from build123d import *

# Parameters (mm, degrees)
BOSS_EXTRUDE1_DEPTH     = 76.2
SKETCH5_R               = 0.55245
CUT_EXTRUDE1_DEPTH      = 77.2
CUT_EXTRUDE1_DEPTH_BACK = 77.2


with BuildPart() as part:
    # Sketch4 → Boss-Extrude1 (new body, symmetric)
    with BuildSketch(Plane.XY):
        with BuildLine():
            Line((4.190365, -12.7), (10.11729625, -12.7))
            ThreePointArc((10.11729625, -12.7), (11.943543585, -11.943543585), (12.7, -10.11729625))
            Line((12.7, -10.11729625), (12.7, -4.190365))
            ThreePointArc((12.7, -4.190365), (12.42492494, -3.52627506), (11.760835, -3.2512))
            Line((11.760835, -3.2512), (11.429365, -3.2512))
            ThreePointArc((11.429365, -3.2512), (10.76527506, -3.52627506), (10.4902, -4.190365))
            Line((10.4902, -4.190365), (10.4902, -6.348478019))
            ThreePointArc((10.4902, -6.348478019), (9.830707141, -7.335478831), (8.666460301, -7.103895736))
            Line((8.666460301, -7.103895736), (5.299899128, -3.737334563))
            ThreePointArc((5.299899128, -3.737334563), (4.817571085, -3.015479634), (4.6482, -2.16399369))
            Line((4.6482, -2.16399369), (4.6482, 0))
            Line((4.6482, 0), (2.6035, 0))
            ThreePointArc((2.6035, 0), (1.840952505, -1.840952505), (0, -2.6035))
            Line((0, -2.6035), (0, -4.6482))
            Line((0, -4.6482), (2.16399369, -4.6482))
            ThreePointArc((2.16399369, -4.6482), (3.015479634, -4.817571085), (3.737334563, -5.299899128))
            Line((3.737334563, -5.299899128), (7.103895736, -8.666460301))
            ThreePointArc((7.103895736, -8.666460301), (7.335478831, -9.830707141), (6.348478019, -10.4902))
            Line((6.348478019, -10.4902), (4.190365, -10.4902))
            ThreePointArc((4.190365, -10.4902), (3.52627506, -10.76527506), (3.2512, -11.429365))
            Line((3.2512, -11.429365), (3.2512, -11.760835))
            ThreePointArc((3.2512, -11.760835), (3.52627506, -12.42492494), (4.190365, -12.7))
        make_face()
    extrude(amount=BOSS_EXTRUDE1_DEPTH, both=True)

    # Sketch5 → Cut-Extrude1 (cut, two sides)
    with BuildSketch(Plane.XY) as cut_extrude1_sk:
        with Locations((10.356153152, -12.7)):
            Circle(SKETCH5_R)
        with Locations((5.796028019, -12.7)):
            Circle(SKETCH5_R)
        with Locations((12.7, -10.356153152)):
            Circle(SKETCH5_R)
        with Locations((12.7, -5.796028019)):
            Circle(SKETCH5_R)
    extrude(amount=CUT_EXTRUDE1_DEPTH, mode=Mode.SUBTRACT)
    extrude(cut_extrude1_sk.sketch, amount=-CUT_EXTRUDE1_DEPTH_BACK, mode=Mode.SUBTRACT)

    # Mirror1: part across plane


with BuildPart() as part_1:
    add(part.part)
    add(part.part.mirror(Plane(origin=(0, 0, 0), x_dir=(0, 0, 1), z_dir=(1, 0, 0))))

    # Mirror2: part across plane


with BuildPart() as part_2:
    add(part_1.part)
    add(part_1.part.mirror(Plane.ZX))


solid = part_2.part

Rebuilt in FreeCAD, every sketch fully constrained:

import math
import FreeCAD as App
import Part
import Sketcher
from FreeCAD import Vector
Q = App.Units.Quantity

doc = App.newDocument("Part")
body = doc.addObject("PartDesign::Body", "Body")

# Sketch on XY plane
sketch1 = doc.addObject("Sketcher::SketchObject", "Sketch")
body.addObject(sketch1)
sketch1.AttachmentSupport = (doc.XY_Plane, [""])
sketch1.MapMode = "FlatFace"
sketch1.addGeometry([
    Part.LineSegment(Vector(4.19, -12.7, 0), Vector(10.12, -12.7, 0)),  # 0
    Part.ArcOfCircle(Part.Circle(Vector(10.12, -10.12, 0), Vector(0, 0, 1), 2.58), math.radians(-90), math.radians(0)),  # 1
    Part.LineSegment(Vector(12.7, -10.12, 0), Vector(12.7, -4.19, 0)),  # 2
    Part.ArcOfCircle(Part.Circle(Vector(11.76, -4.19, 0), Vector(0, 0, 1), 0.94), math.radians(0), math.radians(90)),  # 3
    Part.LineSegment(Vector(11.76, -3.25, 0), Vector(11.43, -3.25, 0)),  # 4
    Part.ArcOfCircle(Part.Circle(Vector(11.43, -4.19, 0), Vector(0, 0, 1), 0.94), math.radians(90), math.radians(180)),  # 5
    Part.LineSegment(Vector(10.49, -4.19, 0), Vector(10.49, -6.35, 0)),  # 6
    Part.ArcOfCircle(Part.Circle(Vector(9.42, -6.35, 0), Vector(0, 0, 1), 1.07), math.radians(-135), math.radians(0)),  # 7
    Part.LineSegment(Vector(8.67, -7.1, 0), Vector(5.3, -3.74, 0)),  # 8
    Part.ArcOfCircle(Part.Circle(Vector(6.87, -2.16, 0), Vector(0, 0, 1), 2.23), math.radians(-180), math.radians(-135)),  # 9
    Part.LineSegment(Vector(4.65, -2.16, 0), Vector(4.65, 0, 0)),  # 10
    Part.LineSegment(Vector(4.65, 0, 0), Vector(2.6, 0, 0)),  # 11
    Part.ArcOfCircle(Part.Circle(Vector(0, 0, 0), Vector(0, 0, 1), 2.6), math.radians(-90), math.radians(0)),  # 12
    Part.LineSegment(Vector(0, -2.6, 0), Vector(0, -4.65, 0)),  # 13
    Part.LineSegment(Vector(0, -4.65, 0), Vector(2.16, -4.65, 0)),  # 14
    Part.ArcOfCircle(Part.Circle(Vector(2.16, -6.87, 0), Vector(0, 0, 1), 2.23), math.radians(45), math.radians(90)),  # 15
    Part.LineSegment(Vector(3.74, -5.3, 0), Vector(7.1, -8.67, 0)),  # 16
    Part.ArcOfCircle(Part.Circle(Vector(6.35, -9.42, 0), Vector(0, 0, 1), 1.07), math.radians(-90), math.radians(45)),  # 17
    Part.LineSegment(Vector(6.35, -10.49, 0), Vector(4.19, -10.49, 0)),  # 18
    Part.ArcOfCircle(Part.Circle(Vector(4.19, -11.43, 0), Vector(0, 0, 1), 0.94), math.radians(90), math.radians(180)),  # 19
    Part.LineSegment(Vector(3.25, -11.43, 0), Vector(3.25, -11.76, 0)),  # 20
    Part.ArcOfCircle(Part.Circle(Vector(4.19, -11.76, 0), Vector(0, 0, 1), 0.94), math.radians(-180), math.radians(-90)),  # 21
], False)
sketch1.addConstraint([
    Sketcher.Constraint("Tangent", 0, 2, 1, 1),
    Sketcher.Constraint("Tangent", 1, 2, 2, 1),
    Sketcher.Constraint("Tangent", 2, 2, 3, 1),
    Sketcher.Constraint("Tangent", 3, 2, 4, 1),
    Sketcher.Constraint("Tangent", 4, 2, 5, 1),
    Sketcher.Constraint("Tangent", 5, 2, 6, 1),
    Sketcher.Constraint("Tangent", 6, 2, 7, 2),
    Sketcher.Constraint("Tangent", 7, 1, 8, 1),
    Sketcher.Constraint("Tangent", 8, 2, 9, 2),
    Sketcher.Constraint("Tangent", 9, 1, 10, 1),
    Sketcher.Constraint("Coincident", 10, 2, 11, 1),
    Sketcher.Constraint("Coincident", 11, 2, 12, 2),
    Sketcher.Constraint("Coincident", 12, 1, 13, 1),
    Sketcher.Constraint("Coincident", 13, 2, 14, 1),
    Sketcher.Constraint("Tangent", 14, 2, 15, 2),
    Sketcher.Constraint("Tangent", 15, 1, 16, 1),
    Sketcher.Constraint("Tangent", 16, 2, 17, 2),
    Sketcher.Constraint("Tangent", 17, 1, 18, 1),
    Sketcher.Constraint("Tangent", 18, 2, 19, 1),
    Sketcher.Constraint("Tangent", 19, 2, 20, 1),
    Sketcher.Constraint("Tangent", 20, 2, 21, 1),
    Sketcher.Constraint("Tangent", 21, 2, 0, 1),
    Sketcher.Constraint("Horizontal", 0),
    Sketcher.Constraint("Vertical", 2),
    Sketcher.Constraint("Horizontal", 4),
    Sketcher.Constraint("Vertical", 6),
    Sketcher.Constraint("Vertical", 10),
    Sketcher.Constraint("Horizontal", 11),
    Sketcher.Constraint("Vertical", 13),
    Sketcher.Constraint("Horizontal", 14),
    Sketcher.Constraint("Horizontal", 18),
    Sketcher.Constraint("Vertical", 20),
    Sketcher.Constraint("Coincident", 12, 3, -1, 1),
    Sketcher.Constraint("Equal", 3, 5),
    Sketcher.Constraint("Equal", 9, 15),
    Sketcher.Constraint("Equal", 7, 17),
    Sketcher.Constraint("Equal", 5, 19),
    Sketcher.Constraint("Equal", 19, 21),
    Sketcher.Constraint("PointOnObject", 10, 2, -1),
    Sketcher.Constraint("PointOnObject", 12, 1, -2),
    Sketcher.Constraint("Parallel", 8, 16),
    Sketcher.Constraint("Equal", 0, 2),
    Sketcher.Constraint("Equal", 18, 6),
    Sketcher.Constraint("Equal", 14, 10),
    Sketcher.Constraint("Equal", 11, 13),
    Sketcher.Constraint("Equal", 4, 20),
    Sketcher.Constraint("Equal", 8, 16),
    Sketcher.Constraint("DistanceY", 0, 2, -1, 1, Q("0.5 in")),
    Sketcher.Constraint("Radius", 9, Q("0.0876 in")),
    Sketcher.Constraint("Radius", 12, Q("0.1025 in")),
    Sketcher.Constraint("DistanceX", 9, 1, 5, 2, Q("0.23 in")),
    Sketcher.Constraint("DistanceX", 11, 2, 11, 1, Q("0.0805 in")),
    Sketcher.Constraint("DistanceY", 3, 2, -1, 1, Q("0.128 in")),
    Sketcher.Constraint("Radius", 7, Q("1.068322 mm")),
    Sketcher.Constraint("DistanceX", 17, 3, 7, 3, Q("0.121 in")),
    Sketcher.Constraint("Radius", 1, Q("2.582704 mm")),
    Sketcher.Constraint("Radius", 3, Q("0.939165 mm")),
])
pad1 = doc.addObject("PartDesign::Pad", "Pad")
body.addObject(pad1)
pad1.Profile = sketch1
pad1.Length = Q("6 in")
pad1.Midplane = True

# Sketch on XY plane
sketch2 = doc.addObject("Sketcher::SketchObject", "Sketch001")
body.addObject(sketch2)
sketch2.AttachmentSupport = (doc.XY_Plane, [""])
sketch2.MapMode = "FlatFace"
sketch2.addGeometry([
    Part.Circle(Vector(10.4, -12.7, 0), Vector(0, 0, 1), 0.6),
    Part.Circle(Vector(5.8, -12.7, 0), Vector(0, 0, 1), 0.6),
    Part.Circle(Vector(12.7, -10.4, 0), Vector(0, 0, 1), 0.6),
    Part.Circle(Vector(12.7, -5.8, 0), Vector(0, 0, 1), 0.6),
], False)
sketch2.addConstraint([
    Sketcher.Constraint("Equal", 0, 1),
    Sketcher.Constraint("Equal", 1, 2),
    Sketcher.Constraint("Equal", 2, 3),
    Sketcher.Constraint("Horizontal", 0, 3, 1, 3),
    Sketcher.Constraint("Vertical", 2, 3, 3, 3),
    Sketcher.Constraint("Diameter", 0, Q("0.0435 in")),
    Sketcher.Constraint("DistanceY", 0, 3, -1, 1, Q("0.5 in")),
    Sketcher.Constraint("DistanceX", -1, 1, 2, 3, Q("0.5 in")),
    Sketcher.Constraint("DistanceX", -1, 1, 1, 3, Q("5.796028 mm")),
    Sketcher.Constraint("DistanceY", 3, 3, -1, 1, Q("5.796028 mm")),
    Sketcher.Constraint("DistanceX", -1, 1, 0, 3, Q("10.356153 mm")),
    Sketcher.Constraint("DistanceY", 2, 3, -1, 1, Q("10.356153 mm")),
])
pocket1 = doc.addObject("PartDesign::Pocket", "Pocket")
body.addObject(pocket1)
pocket1.Profile = sketch2
pocket1.Type = "ThroughAll"
pocket1.Midplane = True
body2 = doc.addObject("PartDesign::Body", "Body001")
doc.recompute()

body2.BaseFeature = body
doc.recompute()

mirroring = doc.addObject("Part::Mirroring", "Mirroring")
mirroring.Source = body
mirroring.Base = Vector(0, 0, 0)
mirroring.Normal = Vector(1, 0, 0)
body3 = doc.addObject("PartDesign::Body", "Body002")
body3.BaseFeature = mirroring
boolean = doc.addObject("PartDesign::Boolean", "Boolean")
body2.addObject(boolean)
boolean.Type = "Fuse"
boolean.addObjects([body3])
doc.recompute()
body4 = doc.addObject("PartDesign::Body", "Body003")
doc.recompute()

body4.BaseFeature = body2
doc.recompute()

mirroring2 = doc.addObject("Part::Mirroring", "Mirroring001")
mirroring2.Source = body2
mirroring2.Base = Vector(0, 0, 0)
mirroring2.Normal = Vector(0, 1, 0)
body5 = doc.addObject("PartDesign::Body", "Body004")
body5.BaseFeature = mirroring2
boolean2 = doc.addObject("PartDesign::Boolean", "Boolean001")
body4.addObject(boolean2)
boolean2.Type = "Fuse"
boolean2.addObjects([body5])
doc.recompute()
mirroring.Visibility = False
mirroring2.Visibility = False

doc.recompute()
